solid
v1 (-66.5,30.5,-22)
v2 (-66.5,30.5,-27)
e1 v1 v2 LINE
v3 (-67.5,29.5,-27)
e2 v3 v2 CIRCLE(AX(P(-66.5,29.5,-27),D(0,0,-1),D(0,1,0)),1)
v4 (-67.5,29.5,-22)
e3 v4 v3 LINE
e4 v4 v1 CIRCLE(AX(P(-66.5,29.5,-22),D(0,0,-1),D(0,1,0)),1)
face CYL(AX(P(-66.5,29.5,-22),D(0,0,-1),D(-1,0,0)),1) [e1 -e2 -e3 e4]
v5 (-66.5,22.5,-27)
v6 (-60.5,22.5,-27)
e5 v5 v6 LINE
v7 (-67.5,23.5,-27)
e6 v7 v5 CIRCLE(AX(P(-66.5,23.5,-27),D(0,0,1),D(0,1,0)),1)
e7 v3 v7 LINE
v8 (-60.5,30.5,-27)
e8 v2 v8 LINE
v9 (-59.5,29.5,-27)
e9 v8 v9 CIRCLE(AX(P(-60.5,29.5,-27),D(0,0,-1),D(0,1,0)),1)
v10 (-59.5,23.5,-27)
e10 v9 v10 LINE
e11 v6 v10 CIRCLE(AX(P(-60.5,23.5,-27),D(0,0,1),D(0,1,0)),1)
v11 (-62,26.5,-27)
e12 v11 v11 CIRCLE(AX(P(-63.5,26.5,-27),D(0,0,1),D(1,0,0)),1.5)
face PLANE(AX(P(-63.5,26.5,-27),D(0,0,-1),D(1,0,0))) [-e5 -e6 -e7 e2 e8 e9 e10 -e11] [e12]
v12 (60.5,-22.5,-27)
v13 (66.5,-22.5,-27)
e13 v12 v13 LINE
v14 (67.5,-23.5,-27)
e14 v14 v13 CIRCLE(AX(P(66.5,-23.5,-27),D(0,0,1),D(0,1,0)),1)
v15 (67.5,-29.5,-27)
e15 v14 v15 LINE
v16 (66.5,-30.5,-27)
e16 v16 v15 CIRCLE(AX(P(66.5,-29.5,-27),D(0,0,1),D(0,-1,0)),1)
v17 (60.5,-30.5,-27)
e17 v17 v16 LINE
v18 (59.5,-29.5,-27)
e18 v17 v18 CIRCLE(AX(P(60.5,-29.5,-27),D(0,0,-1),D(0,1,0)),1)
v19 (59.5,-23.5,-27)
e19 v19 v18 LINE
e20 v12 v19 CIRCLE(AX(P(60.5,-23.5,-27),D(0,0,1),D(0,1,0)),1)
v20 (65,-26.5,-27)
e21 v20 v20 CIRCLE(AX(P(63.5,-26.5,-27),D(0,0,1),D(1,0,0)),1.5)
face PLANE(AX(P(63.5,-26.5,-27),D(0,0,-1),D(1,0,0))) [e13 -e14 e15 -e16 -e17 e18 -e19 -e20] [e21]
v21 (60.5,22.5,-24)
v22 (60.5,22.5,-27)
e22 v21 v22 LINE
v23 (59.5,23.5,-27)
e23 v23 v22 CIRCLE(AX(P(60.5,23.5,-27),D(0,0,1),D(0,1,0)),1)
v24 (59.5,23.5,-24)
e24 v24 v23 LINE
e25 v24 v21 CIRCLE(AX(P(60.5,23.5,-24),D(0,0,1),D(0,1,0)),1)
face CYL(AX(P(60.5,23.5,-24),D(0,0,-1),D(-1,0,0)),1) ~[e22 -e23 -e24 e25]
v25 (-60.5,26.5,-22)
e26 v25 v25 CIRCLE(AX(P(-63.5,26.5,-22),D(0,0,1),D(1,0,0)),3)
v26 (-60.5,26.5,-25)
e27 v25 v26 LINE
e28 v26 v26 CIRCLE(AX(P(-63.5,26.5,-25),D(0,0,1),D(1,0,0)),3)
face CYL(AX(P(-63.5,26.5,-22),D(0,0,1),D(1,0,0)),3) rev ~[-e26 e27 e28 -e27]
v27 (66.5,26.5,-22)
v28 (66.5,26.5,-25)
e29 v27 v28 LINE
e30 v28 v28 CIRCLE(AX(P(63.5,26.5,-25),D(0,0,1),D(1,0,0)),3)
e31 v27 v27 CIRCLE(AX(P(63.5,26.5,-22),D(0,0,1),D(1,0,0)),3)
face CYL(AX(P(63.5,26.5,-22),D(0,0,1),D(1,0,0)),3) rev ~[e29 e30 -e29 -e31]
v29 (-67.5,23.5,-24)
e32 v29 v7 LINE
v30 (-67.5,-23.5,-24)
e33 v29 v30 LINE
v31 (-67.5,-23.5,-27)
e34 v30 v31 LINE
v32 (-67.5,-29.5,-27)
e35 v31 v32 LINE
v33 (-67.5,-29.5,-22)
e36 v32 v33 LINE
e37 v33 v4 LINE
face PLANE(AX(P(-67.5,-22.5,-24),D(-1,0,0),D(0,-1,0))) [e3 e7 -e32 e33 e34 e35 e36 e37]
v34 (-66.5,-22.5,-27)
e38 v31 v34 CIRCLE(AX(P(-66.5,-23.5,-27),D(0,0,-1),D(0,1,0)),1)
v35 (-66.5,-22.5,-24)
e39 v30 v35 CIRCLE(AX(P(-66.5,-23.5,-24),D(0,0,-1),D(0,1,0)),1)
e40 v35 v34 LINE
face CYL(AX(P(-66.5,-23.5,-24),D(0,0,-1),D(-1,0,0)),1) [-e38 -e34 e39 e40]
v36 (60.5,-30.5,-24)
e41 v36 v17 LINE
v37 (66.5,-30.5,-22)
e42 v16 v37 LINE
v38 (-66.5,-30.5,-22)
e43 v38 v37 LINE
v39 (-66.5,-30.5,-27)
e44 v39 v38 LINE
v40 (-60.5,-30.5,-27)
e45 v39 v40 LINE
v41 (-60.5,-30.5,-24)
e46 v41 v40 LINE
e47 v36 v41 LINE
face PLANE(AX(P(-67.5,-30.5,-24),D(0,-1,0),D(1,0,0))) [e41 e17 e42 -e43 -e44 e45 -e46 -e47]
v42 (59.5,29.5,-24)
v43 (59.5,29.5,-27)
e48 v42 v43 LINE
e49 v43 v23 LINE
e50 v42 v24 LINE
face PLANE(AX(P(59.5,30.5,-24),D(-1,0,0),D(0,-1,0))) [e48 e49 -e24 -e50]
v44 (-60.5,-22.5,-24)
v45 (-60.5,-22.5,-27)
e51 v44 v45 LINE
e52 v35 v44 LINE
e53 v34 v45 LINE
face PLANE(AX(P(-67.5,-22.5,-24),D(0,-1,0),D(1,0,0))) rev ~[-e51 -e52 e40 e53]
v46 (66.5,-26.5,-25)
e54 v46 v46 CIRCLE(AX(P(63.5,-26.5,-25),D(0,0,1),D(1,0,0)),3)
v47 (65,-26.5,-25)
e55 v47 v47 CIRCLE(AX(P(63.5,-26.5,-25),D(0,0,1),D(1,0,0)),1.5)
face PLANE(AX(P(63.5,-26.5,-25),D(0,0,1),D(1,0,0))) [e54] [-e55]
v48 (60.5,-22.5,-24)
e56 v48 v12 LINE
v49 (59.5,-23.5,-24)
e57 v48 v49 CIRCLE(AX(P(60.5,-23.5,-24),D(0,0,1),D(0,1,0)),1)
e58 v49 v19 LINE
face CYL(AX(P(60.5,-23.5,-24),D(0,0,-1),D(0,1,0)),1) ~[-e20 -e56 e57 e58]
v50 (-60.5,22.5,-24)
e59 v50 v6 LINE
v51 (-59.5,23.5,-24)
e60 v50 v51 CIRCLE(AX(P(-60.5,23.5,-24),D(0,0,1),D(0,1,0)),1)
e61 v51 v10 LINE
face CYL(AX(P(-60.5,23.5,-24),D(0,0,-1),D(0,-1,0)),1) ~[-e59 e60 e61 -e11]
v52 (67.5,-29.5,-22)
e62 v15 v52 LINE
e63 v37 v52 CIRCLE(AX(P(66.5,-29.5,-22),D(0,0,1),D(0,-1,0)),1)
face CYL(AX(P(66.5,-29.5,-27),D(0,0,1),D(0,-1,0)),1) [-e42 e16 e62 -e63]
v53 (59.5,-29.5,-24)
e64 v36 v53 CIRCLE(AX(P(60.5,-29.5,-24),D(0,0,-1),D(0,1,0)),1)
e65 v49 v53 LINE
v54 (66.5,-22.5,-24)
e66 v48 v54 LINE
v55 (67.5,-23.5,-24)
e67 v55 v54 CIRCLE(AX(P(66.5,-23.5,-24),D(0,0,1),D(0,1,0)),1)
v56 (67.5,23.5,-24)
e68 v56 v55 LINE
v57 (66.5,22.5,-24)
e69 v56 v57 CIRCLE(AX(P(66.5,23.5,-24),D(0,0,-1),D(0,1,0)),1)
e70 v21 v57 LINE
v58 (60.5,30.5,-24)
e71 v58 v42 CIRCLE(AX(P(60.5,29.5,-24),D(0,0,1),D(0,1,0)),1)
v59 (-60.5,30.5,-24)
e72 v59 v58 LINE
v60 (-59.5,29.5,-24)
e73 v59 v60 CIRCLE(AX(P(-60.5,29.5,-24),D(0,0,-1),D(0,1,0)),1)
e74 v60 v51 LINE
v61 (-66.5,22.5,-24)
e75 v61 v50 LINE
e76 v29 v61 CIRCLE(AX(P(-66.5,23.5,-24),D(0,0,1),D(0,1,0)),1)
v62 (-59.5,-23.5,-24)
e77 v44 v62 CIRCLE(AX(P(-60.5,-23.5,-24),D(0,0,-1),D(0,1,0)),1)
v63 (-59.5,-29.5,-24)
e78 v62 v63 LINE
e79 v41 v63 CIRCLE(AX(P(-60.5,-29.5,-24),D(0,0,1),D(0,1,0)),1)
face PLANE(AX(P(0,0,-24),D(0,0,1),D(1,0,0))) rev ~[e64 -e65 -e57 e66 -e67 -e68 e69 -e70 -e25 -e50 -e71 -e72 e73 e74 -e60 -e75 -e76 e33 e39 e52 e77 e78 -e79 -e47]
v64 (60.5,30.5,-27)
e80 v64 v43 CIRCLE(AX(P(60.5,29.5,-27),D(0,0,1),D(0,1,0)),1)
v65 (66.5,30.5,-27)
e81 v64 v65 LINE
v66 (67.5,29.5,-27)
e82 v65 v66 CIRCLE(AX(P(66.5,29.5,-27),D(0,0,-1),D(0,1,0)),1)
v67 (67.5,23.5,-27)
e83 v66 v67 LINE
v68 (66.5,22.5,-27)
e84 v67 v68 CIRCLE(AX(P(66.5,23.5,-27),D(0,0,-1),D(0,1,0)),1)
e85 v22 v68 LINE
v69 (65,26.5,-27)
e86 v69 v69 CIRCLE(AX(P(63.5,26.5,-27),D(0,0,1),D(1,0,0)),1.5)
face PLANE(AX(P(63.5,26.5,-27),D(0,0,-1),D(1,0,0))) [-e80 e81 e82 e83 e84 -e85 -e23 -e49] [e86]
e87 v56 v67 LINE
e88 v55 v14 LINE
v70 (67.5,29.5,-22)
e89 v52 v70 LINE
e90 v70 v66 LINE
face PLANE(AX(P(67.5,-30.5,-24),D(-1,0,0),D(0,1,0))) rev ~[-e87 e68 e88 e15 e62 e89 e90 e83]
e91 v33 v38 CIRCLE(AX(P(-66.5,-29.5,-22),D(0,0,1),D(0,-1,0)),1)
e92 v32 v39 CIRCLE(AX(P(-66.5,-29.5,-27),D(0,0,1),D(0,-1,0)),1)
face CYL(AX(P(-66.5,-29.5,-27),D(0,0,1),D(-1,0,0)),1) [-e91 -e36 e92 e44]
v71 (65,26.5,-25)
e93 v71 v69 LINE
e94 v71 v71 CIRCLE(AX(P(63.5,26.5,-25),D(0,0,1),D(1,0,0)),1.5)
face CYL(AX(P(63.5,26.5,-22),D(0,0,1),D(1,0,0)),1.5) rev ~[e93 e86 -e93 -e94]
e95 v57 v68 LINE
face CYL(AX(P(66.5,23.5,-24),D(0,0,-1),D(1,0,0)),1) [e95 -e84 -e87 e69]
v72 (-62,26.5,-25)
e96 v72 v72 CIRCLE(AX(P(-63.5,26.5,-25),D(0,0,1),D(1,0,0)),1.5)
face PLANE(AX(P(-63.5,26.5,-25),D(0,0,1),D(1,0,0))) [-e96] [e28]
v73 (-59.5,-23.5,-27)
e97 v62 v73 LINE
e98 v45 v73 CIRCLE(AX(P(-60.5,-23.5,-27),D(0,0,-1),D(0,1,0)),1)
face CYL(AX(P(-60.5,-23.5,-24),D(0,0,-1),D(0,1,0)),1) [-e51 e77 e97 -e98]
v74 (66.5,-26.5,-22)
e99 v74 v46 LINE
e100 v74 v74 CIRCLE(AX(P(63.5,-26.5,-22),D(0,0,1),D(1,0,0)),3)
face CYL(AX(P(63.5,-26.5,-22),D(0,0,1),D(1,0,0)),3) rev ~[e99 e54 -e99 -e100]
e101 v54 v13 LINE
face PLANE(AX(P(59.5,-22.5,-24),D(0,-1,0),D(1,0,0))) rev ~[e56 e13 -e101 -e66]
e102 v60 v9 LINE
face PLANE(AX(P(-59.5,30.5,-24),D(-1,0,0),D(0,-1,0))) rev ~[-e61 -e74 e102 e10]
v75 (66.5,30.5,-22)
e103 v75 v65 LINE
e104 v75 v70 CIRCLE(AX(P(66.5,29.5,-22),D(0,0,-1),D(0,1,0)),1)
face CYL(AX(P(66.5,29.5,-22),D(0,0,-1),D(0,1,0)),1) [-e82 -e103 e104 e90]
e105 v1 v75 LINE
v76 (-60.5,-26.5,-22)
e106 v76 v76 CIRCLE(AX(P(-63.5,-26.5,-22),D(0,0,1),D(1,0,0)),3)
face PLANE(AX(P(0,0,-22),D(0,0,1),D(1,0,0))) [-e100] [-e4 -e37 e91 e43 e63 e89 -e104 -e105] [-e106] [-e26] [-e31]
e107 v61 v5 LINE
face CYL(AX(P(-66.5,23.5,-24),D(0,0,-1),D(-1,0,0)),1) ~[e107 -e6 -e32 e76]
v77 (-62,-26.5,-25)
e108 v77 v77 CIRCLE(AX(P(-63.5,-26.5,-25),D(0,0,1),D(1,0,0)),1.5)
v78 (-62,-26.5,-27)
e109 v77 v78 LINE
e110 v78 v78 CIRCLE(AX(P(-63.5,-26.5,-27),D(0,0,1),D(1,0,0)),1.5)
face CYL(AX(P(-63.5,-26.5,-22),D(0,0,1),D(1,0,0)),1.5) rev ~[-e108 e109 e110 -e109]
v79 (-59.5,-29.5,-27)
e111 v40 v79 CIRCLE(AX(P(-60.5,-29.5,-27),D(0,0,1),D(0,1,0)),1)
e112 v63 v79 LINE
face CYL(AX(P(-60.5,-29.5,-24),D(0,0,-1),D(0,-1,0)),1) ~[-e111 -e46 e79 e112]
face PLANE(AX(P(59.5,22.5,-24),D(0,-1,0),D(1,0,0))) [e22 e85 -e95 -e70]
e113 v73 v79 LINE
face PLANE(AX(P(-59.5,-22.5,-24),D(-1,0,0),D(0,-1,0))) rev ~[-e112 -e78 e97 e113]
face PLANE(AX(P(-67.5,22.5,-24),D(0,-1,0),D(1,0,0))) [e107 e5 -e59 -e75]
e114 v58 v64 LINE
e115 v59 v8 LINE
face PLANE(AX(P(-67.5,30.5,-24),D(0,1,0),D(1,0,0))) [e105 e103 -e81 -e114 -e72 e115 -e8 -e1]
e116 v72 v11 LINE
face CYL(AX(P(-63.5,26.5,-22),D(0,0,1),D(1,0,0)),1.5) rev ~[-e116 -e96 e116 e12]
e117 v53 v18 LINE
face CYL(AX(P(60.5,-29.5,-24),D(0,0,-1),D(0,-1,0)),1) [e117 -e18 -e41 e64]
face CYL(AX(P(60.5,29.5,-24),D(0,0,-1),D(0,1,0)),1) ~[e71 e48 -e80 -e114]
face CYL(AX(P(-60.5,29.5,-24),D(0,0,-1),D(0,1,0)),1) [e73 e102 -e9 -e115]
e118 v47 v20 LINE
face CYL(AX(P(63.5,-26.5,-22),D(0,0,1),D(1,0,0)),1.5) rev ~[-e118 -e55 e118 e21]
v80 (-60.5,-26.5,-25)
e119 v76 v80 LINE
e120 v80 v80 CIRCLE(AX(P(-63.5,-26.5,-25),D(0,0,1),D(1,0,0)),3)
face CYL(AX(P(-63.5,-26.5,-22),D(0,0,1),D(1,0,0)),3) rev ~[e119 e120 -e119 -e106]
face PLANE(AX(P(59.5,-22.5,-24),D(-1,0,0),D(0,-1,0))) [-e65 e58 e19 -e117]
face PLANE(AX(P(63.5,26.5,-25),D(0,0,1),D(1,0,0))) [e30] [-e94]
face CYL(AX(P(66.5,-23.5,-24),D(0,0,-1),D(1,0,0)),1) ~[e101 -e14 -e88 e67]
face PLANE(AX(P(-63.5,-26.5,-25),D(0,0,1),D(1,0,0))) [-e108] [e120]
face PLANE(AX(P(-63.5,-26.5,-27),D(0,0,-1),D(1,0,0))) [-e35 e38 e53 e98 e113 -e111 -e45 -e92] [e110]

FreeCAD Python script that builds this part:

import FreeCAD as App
import Part
import Sketcher

V = App.Vector
Q = App.Units.Quantity


def edges_at(feature, points):
    """Names of the edges that pass closest to the given points."""
    edges = feature.Shape.Edges
    near = lambda p: min(range(len(edges)), key=lambda i: edges[i].distToShape(Part.Vertex(*p))[0])
    return sorted({f"Edge{near(p) + 1}" for p in points})

doc = App.newDocument("Part")
body = doc.addObject("PartDesign::Body", "Body")

# Sketch on XY plane
sketch1 = doc.addObject("Sketcher::SketchObject", "Sketch")
body.addObject(sketch1)
sketch1.AttachmentSupport = (doc.XY_Plane, [""])
sketch1.MapMode = "FlatFace"
sketch1.addGeometry([
    Part.LineSegment(V(-68, 30, 0), V(-68, -30, 0)),
    Part.LineSegment(V(-68, -30, 0), V(68, -30, 0)),
    Part.LineSegment(V(68, -30, 0), V(68, 30, 0)),
    Part.LineSegment(V(68, 30, 0), V(-68, 30, 0)),
], False)
sketch1.addConstraint([
    Sketcher.Constraint("Coincident", 0, 2, 1, 1),
    Sketcher.Constraint("Coincident", 1, 2, 2, 1),
    Sketcher.Constraint("Coincident", 2, 2, 3, 1),
    Sketcher.Constraint("Coincident", 3, 2, 0, 1),
    Sketcher.Constraint("Vertical", 0),
    Sketcher.Constraint("Horizontal", 1),
    Sketcher.Constraint("Vertical", 2),
    Sketcher.Constraint("Horizontal", 3),
    Sketcher.Constraint("Symmetric", 0, 2, 2, 2, -1, 1),
    Sketcher.Constraint("DistanceX", 1, 1, 1, 2, Q("135 mm")),
    Sketcher.Constraint("DistanceY", 0, 2, 0, 1, Q("61 mm")),
])
pad1 = doc.addObject("PartDesign::Pad", "Pad")
body.addObject(pad1)
pad1.Profile = sketch1
pad1.Length = 2

# Sketch on XY plane
sketch2 = doc.addObject("Sketcher::SketchObject", "Sketch001")
body.addObject(sketch2)
sketch2.AttachmentSupport = (doc.XY_Plane, [""])
sketch2.MapMode = "FlatFace"
sketch2.addGeometry([
    Part.LineSegment(V(-68, -30, 0), V(-68, -22, 0)),  # 0
    Part.LineSegment(V(-68, -22, 0), V(-60, -22, 0)),  # 1
    Part.LineSegment(V(-60, -22, 0), V(-60, -30, 0)),  # 2
    Part.LineSegment(V(-60, -30, 0), V(-68, -30, 0)),  # 3
    Part.LineSegment(V(-68, 22, 0), V(-68, 30, 0)),  # 4
    Part.LineSegment(V(-68, 30, 0), V(-60, 30, 0)),  # 5
    Part.LineSegment(V(-60, 30, 0), V(-60, 22, 0)),  # 6
    Part.LineSegment(V(-60, 22, 0), V(-68, 22, 0)),  # 7
    Part.LineSegment(V(60, 22, 0), V(60, 30, 0)),  # 8
    Part.LineSegment(V(60, 30, 0), V(68, 30, 0)),  # 9
    Part.LineSegment(V(68, 30, 0), V(68, 22, 0)),  # 10
    Part.LineSegment(V(68, 22, 0), V(60, 22, 0)),  # 11
    Part.LineSegment(V(60, -30, 0), V(60, -22, 0)),  # 12
    Part.LineSegment(V(60, -22, 0), V(68, -22, 0)),  # 13
    Part.LineSegment(V(68, -22, 0), V(68, -30, 0)),  # 14
    Part.LineSegment(V(68, -30, 0), V(60, -30, 0)),  # 15
], False)
sketch2.addConstraint([
    Sketcher.Constraint("Coincident", 0, 2, 1, 1),
    Sketcher.Constraint("Coincident", 1, 2, 2, 1),
    Sketcher.Constraint("Coincident", 2, 2, 3, 1),
    Sketcher.Constraint("Coincident", 3, 2, 0, 1),
    Sketcher.Constraint("Coincident", 4, 2, 5, 1),
    Sketcher.Constraint("Coincident", 5, 2, 6, 1),
    Sketcher.Constraint("Coincident", 6, 2, 7, 1),
    Sketcher.Constraint("Coincident", 7, 2, 4, 1),
    Sketcher.Constraint("Coincident", 8, 2, 9, 1),
    Sketcher.Constraint("Coincident", 9, 2, 10, 1),
    Sketcher.Constraint("Coincident", 10, 2, 11, 1),
    Sketcher.Constraint("Coincident", 11, 2, 8, 1),
    Sketcher.Constraint("Coincident", 12, 2, 13, 1),
    Sketcher.Constraint("Coincident", 13, 2, 14, 1),
    Sketcher.Constraint("Coincident", 14, 2, 15, 1),
    Sketcher.Constraint("Coincident", 15, 2, 12, 1),
    Sketcher.Constraint("Vertical", 0),
    Sketcher.Constraint("Horizontal", 1),
    Sketcher.Constraint("Vertical", 2),
    Sketcher.Constraint("Horizontal", 3),
    Sketcher.Constraint("Vertical", 4),
    Sketcher.Constraint("Horizontal", 5),
    Sketcher.Constraint("Vertical", 6),
    Sketcher.Constraint("Horizontal", 7),
    Sketcher.Constraint("Vertical", 8),
    Sketcher.Constraint("Horizontal", 9),
    Sketcher.Constraint("Vertical", 10),
    Sketcher.Constraint("Horizontal", 11),
    Sketcher.Constraint("Vertical", 12),
    Sketcher.Constraint("Horizontal", 13),
    Sketcher.Constraint("Vertical", 14),
    Sketcher.Constraint("Horizontal", 15),
    Sketcher.Constraint("Symmetric", 2, 2, 8, 2, -1, 1),
    Sketcher.Constraint("Symmetric", 0, 2, 10, 2, -1, 1),
    Sketcher.Constraint("Symmetric", 6, 2, 12, 2, -1, 1),
    Sketcher.Constraint("Symmetric", 4, 2, 14, 2, -1, 1),
    Sketcher.Constraint("Symmetric", 5, 2, 8, 2, -2),
    Sketcher.Constraint("Symmetric", 7, 2, 10, 2, -2),
    Sketcher.Constraint("Equal", 15, 0),
    Sketcher.Constraint("DistanceX", 1, 1, 1, 2, Q("8 mm")),
    Sketcher.Constraint("DistanceY", 0, 2, 4, 2, Q("53 mm")),
    Sketcher.Constraint("DistanceX", 5, 2, 8, 2, Q("119 mm")),
])
pad2 = doc.addObject("PartDesign::Pad", "Pad001")
body.addObject(pad2)
pad2.Profile = sketch2
pad2.Length = 3
pad2.Reversed = True

# Sketch on XY plane
sketch3 = doc.addObject("Sketcher::SketchObject", "Sketch002")
body.addObject(sketch3)
sketch3.AttachmentSupport = (doc.XY_Plane, [""])
sketch3.MapMode = "FlatFace"
sketch3.AttachmentOffset = App.Placement(V(0, 0, 2), App.Rotation())
sketch3.addGeometry([
    Part.Circle(V(-63.5, 26.5, 0), V(0, 0, 1), 1.5),
    Part.Circle(V(-63.5, -26.5, 0), V(0, 0, 1), 1.5),
    Part.Circle(V(63.5, 26.5, 0), V(0, 0, 1), 1.5),
    Part.Circle(V(63.5, -26.5, 0), V(0, 0, 1), 1.5),
], False)
sketch3.addConstraint([
    Sketcher.Constraint("Equal", 0, 1),
    Sketcher.Constraint("Equal", 1, 2),
    Sketcher.Constraint("Equal", 2, 3),
    Sketcher.Constraint("Symmetric", 1, 3, 2, 3, -1, 1),
    Sketcher.Constraint("Symmetric", 0, 3, 3, 3, -1, 1),
    Sketcher.Constraint("Symmetric", 0, 3, 2, 3, -2),
    Sketcher.Constraint("Diameter", 0, Q("3 mm")),
    Sketcher.Constraint("DistanceY", 1, 3, 0, 3, Q("53 mm")),
    Sketcher.Constraint("DistanceX", 0, 3, 2, 3, Q("127 mm")),
])
pocket1 = doc.addObject("PartDesign::Pocket", "Pocket")
body.addObject(pocket1)
pocket1.Profile = sketch3
pocket1.Length = 5

# Sketch on XY plane
sketch4 = doc.addObject("Sketcher::SketchObject", "Sketch003")
body.addObject(sketch4)
sketch4.AttachmentSupport = (doc.XY_Plane, [""])
sketch4.MapMode = "FlatFace"
sketch4.AttachmentOffset = App.Placement(V(0, 0, 2), App.Rotation())
sketch4.addGeometry([
    Part.Circle(V(-63.5, 26.5, 0), V(0, 0, 1), 3),
    Part.Circle(V(-63.5, -26.5, 0), V(0, 0, 1), 3),
    Part.Circle(V(63.5, -26.5, 0), V(0, 0, 1), 3),
    Part.Circle(V(63.5, 26.5, 0), V(0, 0, 1), 3),
], False)
sketch4.addConstraint([
    Sketcher.Constraint("Equal", 0, 1),
    Sketcher.Constraint("Equal", 1, 2),
    Sketcher.Constraint("Equal", 2, 3),
    Sketcher.Constraint("Symmetric", 0, 3, 2, 3, -1, 1),
    Sketcher.Constraint("Symmetric", 1, 3, 3, 3, -1, 1),
    Sketcher.Constraint("Symmetric", 1, 3, 2, 3, -2),
    Sketcher.Constraint("Diameter", 0, Q("6 mm")),
    Sketcher.Constraint("DistanceY", 1, 3, 0, 3, Q("53 mm")),
    Sketcher.Constraint("DistanceX", 1, 3, 2, 3, Q("127 mm")),
])
pocket2 = doc.addObject("PartDesign::Pocket", "Pocket001")
body.addObject(pocket2)
pocket2.Profile = sketch4
pocket2.Length = 3
doc.recompute()

fillet = doc.addObject("PartDesign::Fillet", "Fillet")
body.addObject(fillet)
fillet.Base = (pocket2, edges_at(pocket2, [
    (67.5, -30.5, -0.5),
    (-67.5, -30.5, -0.5),
    (-67.5, 30.5, -0.5),
    (67.5, 30.5, -0.5),
]))
fillet.Radius = 1
doc.recompute()

fillet2 = doc.addObject("PartDesign::Fillet", "Fillet001")
body.addObject(fillet2)
fillet2.Base = (fillet, edges_at(fillet, [
    (59.5, -22.5, -1.5),
    (59.5, 22.5, -1.5),
    (-59.5, 22.5, -1.5),
    (-59.5, -22.5, -1.5),
    (67.5, 22.5, -1.5),
    (59.5, 30.5, -1.5),
    (67.5, -22.5, -1.5),
    (59.5, -30.5, -1.5),
    (-59.5, -30.5, -1.5),
    (-67.5, -22.5, -1.5),
    (-67.5, 22.5, -1.5),
    (-59.5, 30.5, -1.5),
]))
fillet2.Radius = 1
body2 = doc.addObject("PartDesign::Body", "Body001")
doc.recompute()

body.Placement = App.Placement(V(0, 0, -24), App.Rotation(V(0, 0, 1), 0))
boolean = doc.addObject("PartDesign::Boolean", "Boolean")
body2.addObject(boolean)
boolean.Type = "Fuse"
boolean.addObjects([body])

doc.recompute()
